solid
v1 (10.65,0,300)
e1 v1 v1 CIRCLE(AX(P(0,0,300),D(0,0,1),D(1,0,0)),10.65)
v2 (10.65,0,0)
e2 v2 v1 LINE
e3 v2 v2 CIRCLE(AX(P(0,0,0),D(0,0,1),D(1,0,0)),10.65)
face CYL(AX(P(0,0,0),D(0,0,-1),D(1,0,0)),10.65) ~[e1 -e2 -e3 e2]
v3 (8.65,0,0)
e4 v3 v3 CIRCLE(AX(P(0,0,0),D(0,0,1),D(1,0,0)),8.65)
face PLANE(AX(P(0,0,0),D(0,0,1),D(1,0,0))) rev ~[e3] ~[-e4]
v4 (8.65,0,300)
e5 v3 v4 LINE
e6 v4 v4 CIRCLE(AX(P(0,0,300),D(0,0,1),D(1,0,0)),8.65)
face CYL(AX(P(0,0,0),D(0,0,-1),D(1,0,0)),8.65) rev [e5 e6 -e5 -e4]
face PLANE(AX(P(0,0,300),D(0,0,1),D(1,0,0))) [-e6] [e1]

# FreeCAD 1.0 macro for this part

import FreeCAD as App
import Part
import Sketcher
Q = App.Units.Quantity

doc = App.newDocument("Part")
body = doc.addObject("PartDesign::Body", "Body")

# Sketch on XY plane
sketch1 = body.newObject("Sketcher::SketchObject", "Sketch")
sketch1.AttachmentSupport = (doc.getObject("XY_Plane"), [""])
sketch1.MapMode = "FlatFace"
sketch1.addGeometry([
    Part.Circle(App.Vector(0, 0, 0), App.Vector(0, 0, 1), 10.65),
    Part.Circle(App.Vector(0, 0, 0), App.Vector(0, 0, 1), 8.65),
], False)
sketch1.addConstraint([
    Sketcher.Constraint("Coincident", 0, 3, -1, 1),
    Sketcher.Constraint("Coincident", 1, 3, -1, 1),
    Sketcher.Constraint("Diameter", 0, Q("21.3 mm")),
    Sketcher.Constraint("Diameter", 1, Q("17.3 mm")),
])
pad1 = body.newObject("PartDesign::Pad", "Pad")
pad1.Profile = sketch1
pad1.Length = 300

doc.recompute()
